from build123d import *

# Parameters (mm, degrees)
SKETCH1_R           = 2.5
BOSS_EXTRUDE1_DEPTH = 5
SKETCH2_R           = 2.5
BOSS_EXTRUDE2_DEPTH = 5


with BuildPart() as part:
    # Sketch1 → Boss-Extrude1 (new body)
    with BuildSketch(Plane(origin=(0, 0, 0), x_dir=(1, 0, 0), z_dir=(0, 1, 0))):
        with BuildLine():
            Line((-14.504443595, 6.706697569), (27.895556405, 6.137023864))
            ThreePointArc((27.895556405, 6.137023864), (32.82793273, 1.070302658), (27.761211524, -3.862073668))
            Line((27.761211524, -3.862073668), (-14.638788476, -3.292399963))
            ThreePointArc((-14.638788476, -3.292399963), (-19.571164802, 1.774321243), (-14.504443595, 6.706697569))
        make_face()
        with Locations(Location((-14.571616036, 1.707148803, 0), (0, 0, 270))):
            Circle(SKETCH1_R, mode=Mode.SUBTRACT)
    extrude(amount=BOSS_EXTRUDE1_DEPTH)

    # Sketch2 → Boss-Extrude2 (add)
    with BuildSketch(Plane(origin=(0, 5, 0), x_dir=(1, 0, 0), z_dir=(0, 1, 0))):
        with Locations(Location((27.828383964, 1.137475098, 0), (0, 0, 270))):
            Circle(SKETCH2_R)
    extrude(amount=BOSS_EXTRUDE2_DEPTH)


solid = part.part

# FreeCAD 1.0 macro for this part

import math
import FreeCAD as App
import Part
import Sketcher
from FreeCAD import Vector
Q = App.Units.Quantity

doc = App.newDocument("Part")
body = doc.addObject("PartDesign::Body", "Body")

# Sketch on XZ plane
sketch1 = body.newObject("Sketcher::SketchObject", "Sketch")
sketch1.AttachmentSupport = (doc.getObject("XZ_Plane"), [""])
sketch1.MapMode = "FlatFace"
sketch1.addGeometry(Part.LineSegment(Vector(27.9, -6.1, 0), Vector(-14.5, -6.7, 0)), False)
sketch1.addGeometry(Part.ArcOfCircle(Part.Circle(Vector(-14.6, -1.7, 0), Vector(0, 0, 1), 5), math.radians(91), math.radians(271)), False)
sketch1.addGeometry(Part.LineSegment(Vector(-14.6, 3.3, 0), Vector(27.8, 3.9, 0)), False)
sketch1.addGeometry(Part.ArcOfCircle(Part.Circle(Vector(27.8, -1.1, 0), Vector(0, 0, 1), 5), math.radians(-89), math.radians(91)), False)
sketch1.addGeometry(Part.Circle(Vector(-14.6, -1.7, 0), Vector(0, 0, 1), 2.5), False)
sketch1.addConstraint(Sketcher.Constraint("Tangent", 0, 2, 1, 2))
sketch1.addConstraint(Sketcher.Constraint("Tangent", 1, 1, 2, 1))
sketch1.addConstraint(Sketcher.Constraint("Tangent", 2, 2, 3, 2))
sketch1.addConstraint(Sketcher.Constraint("Tangent", 3, 1, 0, 1))
sketch1.addConstraint(Sketcher.Constraint("Coincident", 4, 3, 1, 3))
sketch1.addConstraint(Sketcher.Constraint("Equal", 1, 3))
sketch1.addConstraint(Sketcher.Constraint("Diameter", 4, Q("5 mm")))
sketch1.addConstraint(Sketcher.Constraint("Radius", 1, Q("5 mm")))
sketch1.addConstraint(Sketcher.Constraint("DistanceX", 1, 3, 3, 3, Q("42.4 mm")))
sketch1.addConstraint(Sketcher.Constraint("DistanceY", -1, 1, 1, 1, Q("3.2924 mm")))
sketch1.addConstraint(Sketcher.Constraint("DistanceX", 1, 1, -1, 1, Q("14.638788 mm")))
sketch1.addConstraint(Sketcher.Constraint("DistanceY", 0, 2, 2, 2, Q("10.568771 mm")))
pad1 = body.newObject("PartDesign::Pad", "Pad")
pad1.Profile = sketch1
pad1.Length = 5
pad1.Reversed = True

# Sketch on XZ plane
sketch2 = body.newObject("Sketcher::SketchObject", "Sketch001")
sketch2.AttachmentSupport = (doc.getObject("XZ_Plane"), [""])
sketch2.MapMode = "FlatFace"
sketch2.AttachmentOffset = App.Placement(Vector(0, 0, -5), App.Rotation())
sketch2.addGeometry(Part.Circle(Vector(27.8, -1.1, 0), Vector(0, 0, 1), 2.5), False)
sketch2.addConstraint(Sketcher.Constraint("Diameter", 0, Q("5 mm")))
sketch2.addConstraint(Sketcher.Constraint("DistanceX", -1, 1, 0, 3, Q("27.828384 mm")))
sketch2.addConstraint(Sketcher.Constraint("DistanceY", 0, 3, -1, 1, Q("1.137475 mm")))
pad2 = body.newObject("PartDesign::Pad", "Pad001")
pad2.Profile = sketch2
pad2.Length = 5
pad2.Reversed = True

doc.recompute()
